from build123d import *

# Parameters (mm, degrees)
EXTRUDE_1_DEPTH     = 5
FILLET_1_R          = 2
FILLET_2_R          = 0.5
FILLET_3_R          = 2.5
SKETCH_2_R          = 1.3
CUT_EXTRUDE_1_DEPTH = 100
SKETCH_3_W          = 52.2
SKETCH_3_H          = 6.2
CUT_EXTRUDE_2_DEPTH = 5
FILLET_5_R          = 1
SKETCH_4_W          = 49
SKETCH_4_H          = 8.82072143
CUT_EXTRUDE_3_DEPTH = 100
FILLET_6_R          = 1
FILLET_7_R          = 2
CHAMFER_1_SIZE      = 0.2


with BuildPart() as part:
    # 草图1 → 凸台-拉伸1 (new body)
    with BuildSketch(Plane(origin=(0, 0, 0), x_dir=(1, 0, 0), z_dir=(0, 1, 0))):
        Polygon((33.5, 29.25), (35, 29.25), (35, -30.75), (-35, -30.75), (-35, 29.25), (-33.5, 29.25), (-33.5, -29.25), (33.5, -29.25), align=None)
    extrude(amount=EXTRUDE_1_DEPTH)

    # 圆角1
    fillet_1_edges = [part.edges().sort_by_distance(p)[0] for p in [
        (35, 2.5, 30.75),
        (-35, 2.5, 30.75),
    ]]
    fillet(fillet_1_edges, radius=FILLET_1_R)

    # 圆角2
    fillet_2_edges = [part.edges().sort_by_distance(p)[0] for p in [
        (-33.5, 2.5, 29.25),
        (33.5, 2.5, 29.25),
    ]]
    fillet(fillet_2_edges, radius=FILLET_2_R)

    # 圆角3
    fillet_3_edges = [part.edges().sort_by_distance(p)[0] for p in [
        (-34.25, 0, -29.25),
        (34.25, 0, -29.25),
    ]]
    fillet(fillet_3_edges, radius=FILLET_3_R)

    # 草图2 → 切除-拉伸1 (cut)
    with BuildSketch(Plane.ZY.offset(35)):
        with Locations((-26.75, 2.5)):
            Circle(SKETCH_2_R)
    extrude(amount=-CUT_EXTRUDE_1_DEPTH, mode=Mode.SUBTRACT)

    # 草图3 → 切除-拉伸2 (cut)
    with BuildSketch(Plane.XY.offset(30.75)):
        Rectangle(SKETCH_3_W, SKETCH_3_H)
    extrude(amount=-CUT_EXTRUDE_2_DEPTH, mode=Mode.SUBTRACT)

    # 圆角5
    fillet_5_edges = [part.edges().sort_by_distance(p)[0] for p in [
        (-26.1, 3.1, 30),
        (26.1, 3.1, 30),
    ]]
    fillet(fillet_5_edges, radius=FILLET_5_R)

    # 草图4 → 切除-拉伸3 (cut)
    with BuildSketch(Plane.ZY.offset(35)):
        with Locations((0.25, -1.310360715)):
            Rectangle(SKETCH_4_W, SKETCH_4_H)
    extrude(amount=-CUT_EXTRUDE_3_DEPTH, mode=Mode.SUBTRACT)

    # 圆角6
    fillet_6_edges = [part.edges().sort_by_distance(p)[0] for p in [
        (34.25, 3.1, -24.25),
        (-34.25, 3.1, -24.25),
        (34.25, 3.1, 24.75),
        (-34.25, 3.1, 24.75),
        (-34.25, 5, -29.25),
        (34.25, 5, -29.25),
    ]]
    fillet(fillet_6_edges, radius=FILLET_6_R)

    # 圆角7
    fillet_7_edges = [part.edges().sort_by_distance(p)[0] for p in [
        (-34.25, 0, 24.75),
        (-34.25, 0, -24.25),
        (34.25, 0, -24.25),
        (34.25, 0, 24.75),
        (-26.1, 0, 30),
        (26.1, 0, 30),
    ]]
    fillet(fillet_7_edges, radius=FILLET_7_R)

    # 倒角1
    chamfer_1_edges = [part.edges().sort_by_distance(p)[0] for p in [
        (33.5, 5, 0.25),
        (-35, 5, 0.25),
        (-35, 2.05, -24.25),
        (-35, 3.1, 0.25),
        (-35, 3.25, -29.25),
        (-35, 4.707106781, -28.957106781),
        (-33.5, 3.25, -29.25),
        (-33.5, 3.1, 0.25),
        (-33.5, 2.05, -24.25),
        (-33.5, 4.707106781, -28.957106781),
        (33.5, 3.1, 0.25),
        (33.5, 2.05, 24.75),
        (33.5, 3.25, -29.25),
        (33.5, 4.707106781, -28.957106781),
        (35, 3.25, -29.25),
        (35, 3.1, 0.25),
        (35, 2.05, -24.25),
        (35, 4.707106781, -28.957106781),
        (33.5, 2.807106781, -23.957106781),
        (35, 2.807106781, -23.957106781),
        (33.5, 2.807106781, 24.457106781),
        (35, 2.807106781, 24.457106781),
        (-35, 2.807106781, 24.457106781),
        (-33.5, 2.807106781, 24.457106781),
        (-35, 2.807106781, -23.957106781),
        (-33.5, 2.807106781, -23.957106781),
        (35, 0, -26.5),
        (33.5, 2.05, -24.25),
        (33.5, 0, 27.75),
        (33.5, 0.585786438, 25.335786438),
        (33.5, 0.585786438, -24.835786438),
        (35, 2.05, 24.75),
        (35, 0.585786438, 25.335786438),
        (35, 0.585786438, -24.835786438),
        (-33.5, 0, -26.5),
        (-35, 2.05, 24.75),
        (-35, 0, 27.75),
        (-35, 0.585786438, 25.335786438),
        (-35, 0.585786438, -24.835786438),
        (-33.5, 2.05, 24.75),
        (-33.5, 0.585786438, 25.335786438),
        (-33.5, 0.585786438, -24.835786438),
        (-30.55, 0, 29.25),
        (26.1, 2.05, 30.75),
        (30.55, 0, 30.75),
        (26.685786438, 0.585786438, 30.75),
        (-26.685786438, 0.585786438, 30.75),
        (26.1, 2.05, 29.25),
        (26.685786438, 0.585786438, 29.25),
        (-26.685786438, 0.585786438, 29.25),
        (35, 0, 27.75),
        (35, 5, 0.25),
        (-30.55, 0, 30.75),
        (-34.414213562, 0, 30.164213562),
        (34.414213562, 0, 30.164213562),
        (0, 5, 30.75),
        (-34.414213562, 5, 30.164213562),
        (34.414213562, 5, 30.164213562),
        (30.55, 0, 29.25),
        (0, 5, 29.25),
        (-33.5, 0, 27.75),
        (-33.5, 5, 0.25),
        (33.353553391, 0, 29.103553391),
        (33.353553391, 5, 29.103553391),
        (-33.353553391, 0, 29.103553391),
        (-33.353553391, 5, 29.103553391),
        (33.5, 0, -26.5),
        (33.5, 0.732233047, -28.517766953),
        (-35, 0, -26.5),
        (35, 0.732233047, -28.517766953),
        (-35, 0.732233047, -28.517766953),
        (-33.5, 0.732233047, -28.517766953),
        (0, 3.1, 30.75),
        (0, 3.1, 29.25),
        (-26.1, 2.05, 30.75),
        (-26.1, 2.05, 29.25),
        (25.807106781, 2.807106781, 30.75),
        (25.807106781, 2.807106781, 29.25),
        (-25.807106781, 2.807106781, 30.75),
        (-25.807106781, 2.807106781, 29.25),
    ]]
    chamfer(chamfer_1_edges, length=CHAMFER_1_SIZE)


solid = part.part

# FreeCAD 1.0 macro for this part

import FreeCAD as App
import Part
import Sketcher


def edges_at(feature, points):
    """Names of the edges that pass closest to the given points."""
    edges = feature.Shape.Edges
    near = lambda p: min(range(len(edges)), key=lambda i: edges[i].distToShape(Part.Vertex(*p))[0])
    return sorted({f"Edge{near(p) + 1}" for p in points})


def add_polygon(sketch, points):
    """Adds a closed chain of lines whose ends are joined by coincident constraints."""
    first, n = sketch.GeometryCount, len(points)
    for a, b in zip(points, points[1:] + points[:1]):
        sketch.addGeometry(Part.LineSegment(App.Vector(*a, 0), App.Vector(*b, 0)), False)
    for i in range(n):
        sketch.addConstraint(Sketcher.Constraint("Coincident", first + i, 2, first + (i + 1) % n, 1))

doc = App.newDocument("Part")
body = doc.addObject("PartDesign::Body", "Body")

sketch1 = body.newObject("Sketcher::SketchObject", "Sketch")
sketch1.AttachmentSupport = (doc.getObject("XZ_Plane"), [""])
sketch1.MapMode = "FlatFace"
add_polygon(sketch1, [(35, -29.25), (33.5, -29.25), (33.5, 29.25), (-33.5, 29.25), (-33.5, -29.25), (-35, -29.25), (-35, 30.75), (35, 30.75)])
sketch1.addConstraint([
    Sketcher.Constraint("Horizontal", 0),
    Sketcher.Constraint("Vertical", 1),
    Sketcher.Constraint("Horizontal", 2),
    Sketcher.Constraint("Vertical", 3),
    Sketcher.Constraint("Horizontal", 4),
    Sketcher.Constraint("Vertical", 5),
    Sketcher.Constraint("Horizontal", 6),
    Sketcher.Constraint("Vertical", 7),
    Sketcher.Constraint("Symmetric", 0, 2, 2, 2, -1, 1),
    Sketcher.Constraint("Symmetric", 4, 2, 7, 2, -2),
    Sketcher.Constraint("DistanceX", 2, 2, 2, 1, 67.0),
    Sketcher.Constraint("DistanceX", 6, 1, 6, 2, 70.0),
    Sketcher.Constraint("DistanceY", 5, 1, 5, 2, 60.0),
    Sketcher.Constraint("DistanceY", 1, 1, 1, 2, 58.5),
])
pad1 = body.newObject("PartDesign::Pad", "Pad")
pad1.Profile = sketch1
pad1.Length = 5
pad1.Reversed = True
doc.recompute()

fillet = body.newObject("PartDesign::Fillet", "Fillet")
fillet.Base = (pad1, edges_at(pad1, [(35, 2.5, 30.75), (-35, 2.5, 30.75)]))
fillet.Radius = 2
doc.recompute()

fillet2 = body.newObject("PartDesign::Fillet", "Fillet001")
fillet2.Base = (fillet, edges_at(fillet, [(-33.5, 2.5, 29.25), (33.5, 2.5, 29.25)]))
fillet2.Radius = 0.5
doc.recompute()

fillet3 = body.newObject("PartDesign::Fillet", "Fillet002")
fillet3.Base = (fillet2, edges_at(fillet2, [(-34.25, 0, -29.25), (34.25, 0, -29.25)]))
fillet3.Radius = 2.5

sketch2 = body.newObject("Sketcher::SketchObject", "Sketch001")
sketch2.AttachmentSupport = (doc.getObject("YZ_Plane"), [""])
sketch2.MapMode = "FlatFace"
sketch2.AttachmentOffset = App.Placement(App.Vector(0, 0, -35), App.Rotation())
sketch2.addGeometry(Part.Circle(App.Vector(2.5, -26.75, 0), App.Vector(0, 0, 1), 1.3), False)
sketch2.addConstraint([
    Sketcher.Constraint("Diameter", 0, 2.6),
    Sketcher.Constraint("DistanceX", -1, 1, 0, 3, 2.5),
    Sketcher.Constraint("DistanceY", 0, 3, -1, 1, 26.75),
])
pocket1 = body.newObject("PartDesign::Pocket", "Pocket")
pocket1.Profile = sketch2
pocket1.Length = 100
pocket1.Reversed = True

sketch3 = body.newObject("Sketcher::SketchObject", "Sketch002")
sketch3.AttachmentSupport = (doc.getObject("XY_Plane"), [""])
sketch3.MapMode = "FlatFace"
sketch3.AttachmentOffset = App.Placement(App.Vector(0, 0, 30.75), App.Rotation())
add_polygon(sketch3, [(-26.1, 3.1), (-26.1, -3.1), (26.1, -3.1), (26.1, 3.1)])
sketch3.addConstraint([
    Sketcher.Constraint("Vertical", 0),
    Sketcher.Constraint("Horizontal", 1),
    Sketcher.Constraint("Vertical", 2),
    Sketcher.Constraint("Horizontal", 3),
    Sketcher.Constraint("Symmetric", 0, 2, 2, 2, -1, 1),
    Sketcher.Constraint("DistanceX", 1, 1, 1, 2, 52.2),
    Sketcher.Constraint("DistanceY", 0, 2, 0, 1, 6.2),
])
pocket2 = body.newObject("PartDesign::Pocket", "Pocket001")
pocket2.Profile = sketch3
pocket2.Length = 5
doc.recompute()

fillet4 = body.newObject("PartDesign::Fillet", "Fillet003")
fillet4.Base = (pocket2, edges_at(pocket2, [(-26.1, 3.1, 30), (26.1, 3.1, 30)]))
fillet4.Radius = 1

sketch4 = body.newObject("Sketcher::SketchObject", "Sketch003")
sketch4.AttachmentSupport = (doc.getObject("YZ_Plane"), [""])
sketch4.MapMode = "FlatFace"
sketch4.AttachmentOffset = App.Placement(App.Vector(0, 0, -35), App.Rotation())
add_polygon(sketch4, [(3.1, -24.25), (-5.720721, -24.25), (-5.720721, 24.75), (3.1, 24.75)])
sketch4.addConstraint([
    Sketcher.Constraint("Horizontal", 0),
    Sketcher.Constraint("Vertical", 1),
    Sketcher.Constraint("Horizontal", 2),
    Sketcher.Constraint("Vertical", 3),
    Sketcher.Constraint("DistanceY", 1, 1, 1, 2, 49.0),
    Sketcher.Constraint("DistanceX", -1, 1, 2, 2, 3.1),
    Sketcher.Constraint("DistanceY", 0, 2, -1, 1, 24.25),
    Sketcher.Constraint("DistanceX", 0, 2, 0, 1, 8.820721),
])
pocket3 = body.newObject("PartDesign::Pocket", "Pocket002")
pocket3.Profile = sketch4
pocket3.Length = 100
pocket3.Reversed = True
doc.recompute()

fillet5 = body.newObject("PartDesign::Fillet", "Fillet004")
fillet5.Base = (pocket3, edges_at(pocket3, [
    (34.25, 3.1, -24.25),
    (-34.25, 3.1, -24.25),
    (34.25, 3.1, 24.75),
    (-34.25, 3.1, 24.75),
    (-34.25, 5, -29.25),
    (34.25, 5, -29.25),
]))
fillet5.Radius = 1
doc.recompute()

fillet6 = body.newObject("PartDesign::Fillet", "Fillet005")
fillet6.Base = (fillet5, edges_at(fillet5, [
    (-34.25, 0, 24.75),
    (-34.25, 0, -24.25),
    (34.25, 0, -24.25),
    (34.25, 0, 24.75),
    (-26.1, 0, 30),
    (26.1, 0, 30),
]))
fillet6.Radius = 2
doc.recompute()

chamfer = body.newObject("PartDesign::Chamfer", "Chamfer")
chamfer.Base = (fillet6, edges_at(fillet6, [
    (33.5, 5, 0.25),
    (-35, 5, 0.25),
    (-35, 2.05, -24.25),
    (-35, 3.1, 0.25),
    (-35, 3.25, -29.25),
    (-35, 4.707, -28.957),
    (-33.5, 3.25, -29.25),
    (-33.5, 3.1, 0.25),
    (-33.5, 2.05, -24.25),
    (-33.5, 4.707, -28.957),
    (33.5, 3.1, 0.25),
    (33.5, 2.05, 24.75),
    (33.5, 3.25, -29.25),
    (33.5, 4.707, -28.957),
    (35, 3.25, -29.25),
    (35, 3.1, 0.25),
    (35, 2.05, -24.25),
    (35, 4.707, -28.957),
    (33.5, 2.807, -23.957),
    (35, 2.807, -23.957),
    (33.5, 2.807, 24.457),
    (35, 2.807, 24.457),
    (-35, 2.807, 24.457),
    (-33.5, 2.807, 24.457),
    (-35, 2.807, -23.957),
    (-33.5, 2.807, -23.957),
    (35, 0, -26.5),
    (33.5, 2.05, -24.25),
    (33.5, 0, 27.75),
    (33.5, 0.586, 25.336),
    (33.5, 0.586, -24.836),
    (35, 2.05, 24.75),
    (35, 0.586, 25.336),
    (35, 0.586, -24.836),
    (-33.5, 0, -26.5),
    (-35, 2.05, 24.75),
    (-35, 0, 27.75),
    (-35, 0.586, 25.336),
    (-35, 0.586, -24.836),
    (-33.5, 2.05, 24.75),
    (-33.5, 0.586, 25.336),
    (-33.5, 0.586, -24.836),
    (-30.55, 0, 29.25),
    (26.1, 2.05, 30.75),
    (30.55, 0, 30.75),
    (26.686, 0.586, 30.75),
    (-26.686, 0.586, 30.75),
    (26.1, 2.05, 29.25),
    (26.686, 0.586, 29.25),
    (-26.686, 0.586, 29.25),
    (35, 0, 27.75),
    (35, 5, 0.25),
    (-30.55, 0, 30.75),
    (-34.414, 0, 30.164),
    (34.414, 0, 30.164),
    (0, 5, 30.75),
    (-34.414, 5, 30.164),
    (34.414, 5, 30.164),
    (30.55, 0, 29.25),
    (0, 5, 29.25),
    (-33.5, 0, 27.75),
    (-33.5, 5, 0.25),
    (33.354, 0, 29.104),
    (33.354, 5, 29.104),
    (-33.354, 0, 29.104),
    (-33.354, 5, 29.104),
    (33.5, 0, -26.5),
    (33.5, 0.732, -28.518),
    (-35, 0, -26.5),
    (35, 0.732, -28.518),
    (-35, 0.732, -28.518),
    (-33.5, 0.732, -28.518),
    (0, 3.1, 30.75),
    (0, 3.1, 29.25),
    (-26.1, 2.05, 30.75),
    (-26.1, 2.05, 29.25),
    (25.807, 2.807, 30.75),
    (25.807, 2.807, 29.25),
    (-25.807, 2.807, 30.75),
    (-25.807, 2.807, 29.25),
]))
chamfer.Size = 0.2

doc.recompute()
